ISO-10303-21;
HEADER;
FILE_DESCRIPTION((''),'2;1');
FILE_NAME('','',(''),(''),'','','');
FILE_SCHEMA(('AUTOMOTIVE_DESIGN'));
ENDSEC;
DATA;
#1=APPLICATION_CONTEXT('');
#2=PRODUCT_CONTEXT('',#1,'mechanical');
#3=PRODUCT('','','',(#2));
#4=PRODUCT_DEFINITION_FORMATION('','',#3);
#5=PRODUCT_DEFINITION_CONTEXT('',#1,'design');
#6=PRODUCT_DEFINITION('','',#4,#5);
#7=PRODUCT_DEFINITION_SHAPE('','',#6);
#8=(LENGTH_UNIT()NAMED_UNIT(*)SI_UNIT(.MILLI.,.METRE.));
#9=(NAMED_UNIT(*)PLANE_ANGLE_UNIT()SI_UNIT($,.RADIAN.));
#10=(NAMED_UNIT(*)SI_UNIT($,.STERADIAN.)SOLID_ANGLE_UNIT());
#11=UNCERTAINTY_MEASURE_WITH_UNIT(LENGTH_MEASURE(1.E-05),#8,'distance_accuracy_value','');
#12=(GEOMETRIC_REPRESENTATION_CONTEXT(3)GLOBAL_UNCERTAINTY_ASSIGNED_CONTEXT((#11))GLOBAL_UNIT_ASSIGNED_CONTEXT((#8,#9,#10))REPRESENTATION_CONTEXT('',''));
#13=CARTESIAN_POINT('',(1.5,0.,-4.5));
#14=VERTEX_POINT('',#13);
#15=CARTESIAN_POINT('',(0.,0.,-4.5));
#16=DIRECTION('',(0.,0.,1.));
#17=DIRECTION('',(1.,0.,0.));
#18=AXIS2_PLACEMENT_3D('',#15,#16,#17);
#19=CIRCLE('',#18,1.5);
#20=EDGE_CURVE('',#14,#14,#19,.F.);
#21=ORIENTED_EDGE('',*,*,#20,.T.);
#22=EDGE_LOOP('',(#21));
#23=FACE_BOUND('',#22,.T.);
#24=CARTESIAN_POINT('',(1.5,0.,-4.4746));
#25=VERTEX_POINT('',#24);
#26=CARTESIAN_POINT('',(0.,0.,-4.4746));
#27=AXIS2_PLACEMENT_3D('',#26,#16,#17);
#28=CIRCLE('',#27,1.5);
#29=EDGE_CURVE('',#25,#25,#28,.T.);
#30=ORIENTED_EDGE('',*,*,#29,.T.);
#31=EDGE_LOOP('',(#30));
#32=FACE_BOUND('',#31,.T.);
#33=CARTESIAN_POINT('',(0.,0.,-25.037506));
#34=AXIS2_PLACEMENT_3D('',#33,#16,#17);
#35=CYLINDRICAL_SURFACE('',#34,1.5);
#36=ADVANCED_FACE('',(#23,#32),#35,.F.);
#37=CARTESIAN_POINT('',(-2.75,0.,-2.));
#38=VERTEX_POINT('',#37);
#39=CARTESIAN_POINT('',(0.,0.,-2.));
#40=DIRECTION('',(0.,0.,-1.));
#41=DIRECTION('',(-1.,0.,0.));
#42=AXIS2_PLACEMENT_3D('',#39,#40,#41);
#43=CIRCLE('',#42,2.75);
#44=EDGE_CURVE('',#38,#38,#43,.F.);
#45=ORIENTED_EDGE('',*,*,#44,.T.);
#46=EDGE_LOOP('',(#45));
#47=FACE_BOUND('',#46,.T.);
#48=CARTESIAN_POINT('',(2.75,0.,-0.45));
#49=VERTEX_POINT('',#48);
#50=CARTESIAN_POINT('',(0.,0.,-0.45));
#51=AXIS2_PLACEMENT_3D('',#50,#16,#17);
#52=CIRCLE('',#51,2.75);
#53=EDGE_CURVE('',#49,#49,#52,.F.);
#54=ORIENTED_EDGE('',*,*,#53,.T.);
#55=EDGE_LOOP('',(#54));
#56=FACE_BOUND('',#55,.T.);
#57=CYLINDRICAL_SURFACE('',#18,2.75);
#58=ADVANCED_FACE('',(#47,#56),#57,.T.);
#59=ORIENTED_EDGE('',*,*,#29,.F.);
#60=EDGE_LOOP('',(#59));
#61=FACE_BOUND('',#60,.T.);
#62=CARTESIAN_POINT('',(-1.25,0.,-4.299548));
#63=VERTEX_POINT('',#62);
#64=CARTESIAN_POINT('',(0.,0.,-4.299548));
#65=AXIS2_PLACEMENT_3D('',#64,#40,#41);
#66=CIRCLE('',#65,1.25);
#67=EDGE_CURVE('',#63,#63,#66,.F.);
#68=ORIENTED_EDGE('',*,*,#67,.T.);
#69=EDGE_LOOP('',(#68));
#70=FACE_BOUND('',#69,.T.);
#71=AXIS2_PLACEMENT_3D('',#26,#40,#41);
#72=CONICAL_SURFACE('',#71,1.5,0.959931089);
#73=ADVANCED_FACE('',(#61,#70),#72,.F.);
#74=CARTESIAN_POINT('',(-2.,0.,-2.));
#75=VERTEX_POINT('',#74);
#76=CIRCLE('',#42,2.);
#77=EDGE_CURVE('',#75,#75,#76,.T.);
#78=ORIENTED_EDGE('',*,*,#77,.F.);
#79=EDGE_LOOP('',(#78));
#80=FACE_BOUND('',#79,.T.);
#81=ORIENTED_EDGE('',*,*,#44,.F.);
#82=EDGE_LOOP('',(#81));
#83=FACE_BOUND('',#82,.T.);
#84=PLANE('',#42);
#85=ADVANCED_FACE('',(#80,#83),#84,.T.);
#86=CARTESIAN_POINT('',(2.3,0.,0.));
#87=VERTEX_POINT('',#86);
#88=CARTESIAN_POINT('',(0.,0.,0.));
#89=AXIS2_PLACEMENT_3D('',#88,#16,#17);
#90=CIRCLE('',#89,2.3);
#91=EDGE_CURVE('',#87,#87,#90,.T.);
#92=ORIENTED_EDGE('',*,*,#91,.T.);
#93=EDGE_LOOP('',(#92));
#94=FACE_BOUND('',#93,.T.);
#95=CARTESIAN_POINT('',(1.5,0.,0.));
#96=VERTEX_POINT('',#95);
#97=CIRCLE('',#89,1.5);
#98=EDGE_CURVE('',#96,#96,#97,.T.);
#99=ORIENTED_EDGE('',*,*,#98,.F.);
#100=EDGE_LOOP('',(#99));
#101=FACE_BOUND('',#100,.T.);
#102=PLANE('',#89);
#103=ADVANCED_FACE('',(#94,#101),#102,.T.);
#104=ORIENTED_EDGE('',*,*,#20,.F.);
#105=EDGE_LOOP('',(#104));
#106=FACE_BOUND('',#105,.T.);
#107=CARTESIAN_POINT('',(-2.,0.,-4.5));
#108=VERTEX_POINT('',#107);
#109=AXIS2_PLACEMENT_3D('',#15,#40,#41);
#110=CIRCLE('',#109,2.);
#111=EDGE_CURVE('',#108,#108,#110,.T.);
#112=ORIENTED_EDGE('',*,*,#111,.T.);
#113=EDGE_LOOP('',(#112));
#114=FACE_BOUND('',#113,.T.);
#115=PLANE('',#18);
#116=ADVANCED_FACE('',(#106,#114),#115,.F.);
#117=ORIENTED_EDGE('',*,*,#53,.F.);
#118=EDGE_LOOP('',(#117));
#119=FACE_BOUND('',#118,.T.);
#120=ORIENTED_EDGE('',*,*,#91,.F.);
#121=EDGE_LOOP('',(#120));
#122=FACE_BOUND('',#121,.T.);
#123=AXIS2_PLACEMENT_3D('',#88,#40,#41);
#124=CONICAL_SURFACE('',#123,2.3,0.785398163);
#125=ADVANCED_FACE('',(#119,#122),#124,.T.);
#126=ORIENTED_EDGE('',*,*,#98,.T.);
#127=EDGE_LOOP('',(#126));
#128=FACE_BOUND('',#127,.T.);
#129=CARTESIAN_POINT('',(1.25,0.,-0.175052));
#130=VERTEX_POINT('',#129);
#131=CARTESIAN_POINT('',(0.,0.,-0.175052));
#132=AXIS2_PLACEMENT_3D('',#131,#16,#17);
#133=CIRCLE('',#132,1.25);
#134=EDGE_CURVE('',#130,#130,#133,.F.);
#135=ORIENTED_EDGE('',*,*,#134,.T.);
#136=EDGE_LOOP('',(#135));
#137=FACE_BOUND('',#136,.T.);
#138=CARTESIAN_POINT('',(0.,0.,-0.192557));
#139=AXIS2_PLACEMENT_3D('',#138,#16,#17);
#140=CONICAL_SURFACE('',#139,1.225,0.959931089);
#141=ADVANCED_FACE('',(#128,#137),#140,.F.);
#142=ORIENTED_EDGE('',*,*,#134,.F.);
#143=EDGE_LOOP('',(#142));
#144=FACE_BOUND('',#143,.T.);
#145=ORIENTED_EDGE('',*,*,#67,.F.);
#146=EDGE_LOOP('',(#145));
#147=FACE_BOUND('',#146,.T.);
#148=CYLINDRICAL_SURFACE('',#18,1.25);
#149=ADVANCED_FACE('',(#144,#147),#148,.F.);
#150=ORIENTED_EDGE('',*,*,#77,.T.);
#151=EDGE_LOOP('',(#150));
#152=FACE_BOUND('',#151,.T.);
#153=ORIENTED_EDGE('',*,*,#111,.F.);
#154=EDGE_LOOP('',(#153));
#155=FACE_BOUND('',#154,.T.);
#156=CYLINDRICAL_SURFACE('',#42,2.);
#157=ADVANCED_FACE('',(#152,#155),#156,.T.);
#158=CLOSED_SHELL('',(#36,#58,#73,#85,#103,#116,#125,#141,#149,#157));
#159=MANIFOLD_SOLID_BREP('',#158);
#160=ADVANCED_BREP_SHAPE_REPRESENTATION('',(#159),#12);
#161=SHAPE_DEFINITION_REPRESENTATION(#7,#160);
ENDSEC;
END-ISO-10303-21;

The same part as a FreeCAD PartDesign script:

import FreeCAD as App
import Part
import Sketcher

V = App.Vector
Q = App.Units.Quantity


def edges_at(feature, points):
    """Names of the edges that pass closest to the given points."""
    edges = feature.Shape.Edges
    near = lambda p: min(range(len(edges)), key=lambda i: edges[i].distToShape(Part.Vertex(*p))[0])
    return sorted({f"Edge{near(p) + 1}" for p in points})

doc = App.newDocument("Part")
body = doc.addObject("PartDesign::Body", "Body")

# Sketch on XY plane
sketch1 = body.newObject("Sketcher::SketchObject", "Sketch")
sketch1.AttachmentSupport = (doc.getObject("XY_Plane"), [""])
sketch1.MapMode = "FlatFace"
sketch1.addGeometry([
    Part.Circle(V(0, 0, 0), V(0, 0, 1), 2.75),
    Part.Circle(V(0, 0, 0), V(0, 0, 1), 1.25),
], False)
sketch1.addConstraint([
    Sketcher.Constraint("Coincident", 0, 3, -1, 1),
    Sketcher.Constraint("Coincident", 1, 3, -1, 1),
    Sketcher.Constraint("Diameter", 0, Q("5.5 mm")),
    Sketcher.Constraint("Diameter", 1, Q("2.5 mm")),
])
pad1 = body.newObject("PartDesign::Pad", "Pad")
pad1.Profile = sketch1
pad1.Length = 4.5
pad1.Reversed = True

# Sketch on YZ plane
sketch2 = body.newObject("Sketcher::SketchObject", "Sketch001")
sketch2.AttachmentSupport = (doc.getObject("YZ_Plane"), [""])
sketch2.MapMode = "FlatFace"
sketch2.addGeometry([
    Part.LineSegment(V(1.5, -4.4746, 0), V(1.225, -4.282043, 0)),  # 0
    Part.LineSegment(V(1.225, -4.282043, 0), V(1.225, -4.5254, 0)),  # 1
    Part.LineSegment(V(1.225, -4.5254, 0), V(1.5, -4.5254, 0)),  # 2
    Part.LineSegment(V(1.5, -4.5254, 0), V(1.5, -4.4746, 0)),  # 3
    Part.LineSegment(V(1.5, 0, 0), V(1.5, 0.0508, 0)),  # 4
    Part.LineSegment(V(1.5, 0.0508, 0), V(1.225, 0.0508, 0)),  # 5
    Part.LineSegment(V(1.225, 0.0508, 0), V(1.225, -0.192557, 0)),  # 6
    Part.LineSegment(V(1.225, -0.192557, 0), V(1.5, 0, 0)),  # 7
], False)
sketch2.addConstraint([
    Sketcher.Constraint("Coincident", 0, 2, 1, 1),
    Sketcher.Constraint("Coincident", 1, 2, 2, 1),
    Sketcher.Constraint("Coincident", 2, 2, 3, 1),
    Sketcher.Constraint("Coincident", 3, 2, 0, 1),
    Sketcher.Constraint("Coincident", 4, 2, 5, 1),
    Sketcher.Constraint("Coincident", 5, 2, 6, 1),
    Sketcher.Constraint("Coincident", 6, 2, 7, 1),
    Sketcher.Constraint("Coincident", 7, 2, 4, 1),
    Sketcher.Constraint("Vertical", 1),
    Sketcher.Constraint("Horizontal", 2),
    Sketcher.Constraint("Vertical", 3),
    Sketcher.Constraint("Vertical", 4),
    Sketcher.Constraint("Horizontal", 5),
    Sketcher.Constraint("Vertical", 6),
    Sketcher.Constraint("PointOnObject", 7, 2, -1),
    Sketcher.Constraint("Vertical", 3, 2, 4, 2),
    Sketcher.Constraint("Vertical", 1, 2, 5, 2),
    Sketcher.Constraint("Equal", 3, 4),
    Sketcher.Constraint("Equal", 1, 6),
    Sketcher.Constraint("Angle", 0, Q("145 deg")),
    Sketcher.Constraint("DistanceX", -1, 1, 2, 2, Q("1.5 mm")),
    Sketcher.Constraint("DistanceX", 2, 1, 2, 2, Q("0.275 mm")),
    Sketcher.Constraint("DistanceY", 3, 1, 3, 2, Q("0.0508 mm")),
    Sketcher.Constraint("DistanceY", 1, 2, -1, 1, Q("4.5254 mm")),
])
groove = body.newObject("PartDesign::Groove", "Groove")
groove.Profile = sketch2
groove.ReferenceAxis = (sketch2, ["V_Axis"])
groove.Angle = 360
doc.recompute()

chamfer = body.newObject("PartDesign::Chamfer", "Chamfer")
chamfer.Base = (groove, edges_at(groove, [(-2.75, 0, 0)]))
chamfer.Size = 0.45

# Sketch on XY plane
sketch3 = body.newObject("Sketcher::SketchObject", "Sketch002")
sketch3.AttachmentSupport = (doc.getObject("XY_Plane"), [""])
sketch3.MapMode = "FlatFace"
sketch3.AttachmentOffset = App.Placement(V(0, 0, -4.5), App.Rotation())
sketch3.addGeometry([
    Part.LineSegment(V(4.649, 4.649, 0), V(4.649, -4.649, 0)),  # 0
    Part.LineSegment(V(4.649, -4.649, 0), V(-4.649, -4.649, 0)),  # 1
    Part.LineSegment(V(-4.649, -4.649, 0), V(-4.649, 4.649, 0)),  # 2
    Part.LineSegment(V(-4.649, 4.649, 0), V(4.649, 4.649, 0)),  # 3
    Part.Circle(V(0, 0, 0), V(0, 0, 1), 2),  # 4
], False)
sketch3.addConstraint([
    Sketcher.Constraint("Coincident", 0, 2, 1, 1),
    Sketcher.Constraint("Coincident", 1, 2, 2, 1),
    Sketcher.Constraint("Coincident", 2, 2, 3, 1),
    Sketcher.Constraint("Coincident", 3, 2, 0, 1),
    Sketcher.Constraint("Vertical", 0),
    Sketcher.Constraint("Horizontal", 1),
    Sketcher.Constraint("Vertical", 2),
    Sketcher.Constraint("Horizontal", 3),
    Sketcher.Constraint("Coincident", 4, 3, -1, 1),
    Sketcher.Constraint("Symmetric", 0, 2, 2, 2, -1, 1),
    Sketcher.Constraint("Equal", 3, 0),
    Sketcher.Constraint("Diameter", 4, Q("4 mm")),
    Sketcher.Constraint("DistanceX", 1, 2, 1, 1, Q("9.298 mm")),
])
pocket1 = body.newObject("PartDesign::Pocket", "Pocket")
pocket1.Profile = sketch3
pocket1.Length = 2.5
pocket1.Reversed = True

doc.recompute()
